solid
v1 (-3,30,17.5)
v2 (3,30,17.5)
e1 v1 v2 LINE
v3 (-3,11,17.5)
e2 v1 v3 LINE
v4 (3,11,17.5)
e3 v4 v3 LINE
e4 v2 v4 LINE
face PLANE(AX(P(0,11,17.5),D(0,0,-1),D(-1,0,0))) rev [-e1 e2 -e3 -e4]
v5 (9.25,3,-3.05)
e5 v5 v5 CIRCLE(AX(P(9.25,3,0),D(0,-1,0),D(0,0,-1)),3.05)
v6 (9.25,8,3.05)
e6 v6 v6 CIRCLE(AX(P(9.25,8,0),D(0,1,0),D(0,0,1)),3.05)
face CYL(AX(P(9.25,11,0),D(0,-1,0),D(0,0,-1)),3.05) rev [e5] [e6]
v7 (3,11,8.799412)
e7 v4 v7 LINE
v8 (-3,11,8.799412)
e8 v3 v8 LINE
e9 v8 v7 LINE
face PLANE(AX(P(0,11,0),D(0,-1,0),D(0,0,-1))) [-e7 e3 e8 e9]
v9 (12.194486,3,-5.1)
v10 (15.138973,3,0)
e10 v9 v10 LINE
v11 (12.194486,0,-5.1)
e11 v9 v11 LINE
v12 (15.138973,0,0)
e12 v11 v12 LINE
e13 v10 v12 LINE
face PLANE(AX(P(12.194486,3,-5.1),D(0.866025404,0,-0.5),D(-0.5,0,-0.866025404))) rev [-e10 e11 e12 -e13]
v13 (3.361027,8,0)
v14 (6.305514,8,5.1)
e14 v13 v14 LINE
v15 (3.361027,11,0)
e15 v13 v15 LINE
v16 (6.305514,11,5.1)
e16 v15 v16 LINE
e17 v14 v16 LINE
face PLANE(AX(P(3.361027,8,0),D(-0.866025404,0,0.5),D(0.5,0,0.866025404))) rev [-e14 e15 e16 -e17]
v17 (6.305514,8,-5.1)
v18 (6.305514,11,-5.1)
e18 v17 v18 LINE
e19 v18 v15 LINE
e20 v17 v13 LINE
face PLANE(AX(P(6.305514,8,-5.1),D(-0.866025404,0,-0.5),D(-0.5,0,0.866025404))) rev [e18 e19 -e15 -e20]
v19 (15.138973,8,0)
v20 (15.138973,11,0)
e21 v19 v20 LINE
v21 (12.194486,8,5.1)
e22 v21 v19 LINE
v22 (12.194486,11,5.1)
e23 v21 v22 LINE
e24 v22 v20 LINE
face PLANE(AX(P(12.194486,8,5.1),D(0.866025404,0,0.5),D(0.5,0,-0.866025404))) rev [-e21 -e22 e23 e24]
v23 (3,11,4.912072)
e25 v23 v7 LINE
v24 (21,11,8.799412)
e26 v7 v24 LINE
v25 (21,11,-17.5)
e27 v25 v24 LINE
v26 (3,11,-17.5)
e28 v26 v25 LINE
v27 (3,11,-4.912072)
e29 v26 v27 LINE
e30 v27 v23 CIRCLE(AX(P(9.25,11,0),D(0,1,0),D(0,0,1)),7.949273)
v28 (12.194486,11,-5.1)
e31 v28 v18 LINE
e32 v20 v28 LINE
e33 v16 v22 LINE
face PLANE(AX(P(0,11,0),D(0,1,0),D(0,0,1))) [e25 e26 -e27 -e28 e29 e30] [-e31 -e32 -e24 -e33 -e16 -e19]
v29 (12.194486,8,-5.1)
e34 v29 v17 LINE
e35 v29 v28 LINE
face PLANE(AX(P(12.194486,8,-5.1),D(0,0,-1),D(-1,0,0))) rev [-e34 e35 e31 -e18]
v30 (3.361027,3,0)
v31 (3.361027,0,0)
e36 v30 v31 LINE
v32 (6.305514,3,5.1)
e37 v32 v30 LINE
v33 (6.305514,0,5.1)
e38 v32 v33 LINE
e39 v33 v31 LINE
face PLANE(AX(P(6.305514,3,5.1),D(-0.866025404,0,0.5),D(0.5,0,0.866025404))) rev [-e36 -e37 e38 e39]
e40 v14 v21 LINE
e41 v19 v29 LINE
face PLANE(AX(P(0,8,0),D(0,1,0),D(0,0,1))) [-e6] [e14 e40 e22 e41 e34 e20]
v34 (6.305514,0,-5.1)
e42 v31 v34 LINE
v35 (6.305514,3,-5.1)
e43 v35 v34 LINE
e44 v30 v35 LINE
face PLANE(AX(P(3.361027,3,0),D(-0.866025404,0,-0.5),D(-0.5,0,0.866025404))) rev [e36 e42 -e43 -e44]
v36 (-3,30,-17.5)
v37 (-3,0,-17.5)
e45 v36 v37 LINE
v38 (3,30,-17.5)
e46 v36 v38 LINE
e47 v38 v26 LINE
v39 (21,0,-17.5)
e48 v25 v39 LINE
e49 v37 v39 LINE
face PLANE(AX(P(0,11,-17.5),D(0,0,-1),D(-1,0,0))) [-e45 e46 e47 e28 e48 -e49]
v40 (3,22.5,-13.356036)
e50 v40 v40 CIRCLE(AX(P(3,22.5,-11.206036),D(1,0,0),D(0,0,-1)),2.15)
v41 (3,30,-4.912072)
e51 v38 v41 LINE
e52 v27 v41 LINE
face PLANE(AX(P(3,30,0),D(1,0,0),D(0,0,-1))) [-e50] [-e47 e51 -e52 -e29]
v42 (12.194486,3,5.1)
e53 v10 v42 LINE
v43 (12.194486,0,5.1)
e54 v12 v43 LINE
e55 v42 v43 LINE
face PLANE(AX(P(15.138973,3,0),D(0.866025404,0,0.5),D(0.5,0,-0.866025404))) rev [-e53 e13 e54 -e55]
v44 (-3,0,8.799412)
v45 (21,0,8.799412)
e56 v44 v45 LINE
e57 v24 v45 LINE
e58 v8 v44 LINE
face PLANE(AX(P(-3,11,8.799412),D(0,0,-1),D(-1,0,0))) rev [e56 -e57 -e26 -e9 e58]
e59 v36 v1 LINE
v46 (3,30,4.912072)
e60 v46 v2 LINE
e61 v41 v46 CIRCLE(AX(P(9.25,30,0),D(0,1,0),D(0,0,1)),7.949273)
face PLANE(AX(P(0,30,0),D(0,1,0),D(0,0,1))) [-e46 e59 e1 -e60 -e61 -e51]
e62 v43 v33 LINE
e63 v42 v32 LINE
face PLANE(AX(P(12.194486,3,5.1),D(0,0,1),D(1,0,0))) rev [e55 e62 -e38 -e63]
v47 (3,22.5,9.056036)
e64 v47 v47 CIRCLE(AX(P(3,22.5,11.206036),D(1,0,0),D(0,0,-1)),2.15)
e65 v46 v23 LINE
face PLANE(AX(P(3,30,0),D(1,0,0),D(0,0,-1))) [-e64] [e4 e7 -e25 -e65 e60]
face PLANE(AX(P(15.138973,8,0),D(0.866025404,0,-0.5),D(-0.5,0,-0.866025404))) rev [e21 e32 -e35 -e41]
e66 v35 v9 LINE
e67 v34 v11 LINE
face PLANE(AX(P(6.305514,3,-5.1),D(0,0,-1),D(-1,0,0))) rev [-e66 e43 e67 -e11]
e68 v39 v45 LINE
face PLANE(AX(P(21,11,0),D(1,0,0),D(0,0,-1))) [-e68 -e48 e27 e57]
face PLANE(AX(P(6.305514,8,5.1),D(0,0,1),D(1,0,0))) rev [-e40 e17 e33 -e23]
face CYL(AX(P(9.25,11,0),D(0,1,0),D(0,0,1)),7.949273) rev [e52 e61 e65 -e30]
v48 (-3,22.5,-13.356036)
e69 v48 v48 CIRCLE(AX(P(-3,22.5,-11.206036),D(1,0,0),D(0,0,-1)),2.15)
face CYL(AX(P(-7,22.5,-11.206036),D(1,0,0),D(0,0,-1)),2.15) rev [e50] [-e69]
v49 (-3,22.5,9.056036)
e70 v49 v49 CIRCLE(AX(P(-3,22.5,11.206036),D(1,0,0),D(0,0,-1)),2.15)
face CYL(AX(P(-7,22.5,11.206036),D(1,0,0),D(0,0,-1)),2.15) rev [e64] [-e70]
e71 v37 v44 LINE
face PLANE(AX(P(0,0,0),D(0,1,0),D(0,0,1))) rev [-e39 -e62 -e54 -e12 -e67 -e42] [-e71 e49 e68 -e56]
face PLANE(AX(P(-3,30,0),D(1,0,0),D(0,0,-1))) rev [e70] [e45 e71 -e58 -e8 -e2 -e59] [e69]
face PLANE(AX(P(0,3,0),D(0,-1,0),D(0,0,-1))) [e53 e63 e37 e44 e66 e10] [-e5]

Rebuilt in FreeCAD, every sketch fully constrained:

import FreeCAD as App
import Part
import Sketcher
Q = App.Units.Quantity

doc = App.newDocument("Part")
body = doc.addObject("PartDesign::Body", "Body")

# Sketch on XZ plane
sketch1 = body.newObject("Sketcher::SketchObject", "Sketch")
sketch1.AttachmentSupport = (doc.getObject("XZ_Plane"), [""])
sketch1.MapMode = "FlatFace"
sketch1.addGeometry(Part.LineSegment(App.Vector(3, -17.5, 0), App.Vector(3, 17.5, 0)), False)
sketch1.addGeometry(Part.LineSegment(App.Vector(3, 17.5, 0), App.Vector(21, 17.5, 0)), False)
sketch1.addGeometry(Part.LineSegment(App.Vector(21, 17.5, 0), App.Vector(21, -17.5, 0)), False)
sketch1.addGeometry(Part.LineSegment(App.Vector(21, -17.5, 0), App.Vector(3, -17.5, 0)), False)
sketch1.addGeometry(Part.Circle(App.Vector(9.25, 0, 0), App.Vector(0, 0, 1), 3.05), False)
sketch1.addConstraint(Sketcher.Constraint("Coincident", 0, 2, 1, 1))
sketch1.addConstraint(Sketcher.Constraint("Coincident", 1, 2, 2, 1))
sketch1.addConstraint(Sketcher.Constraint("Coincident", 2, 2, 3, 1))
sketch1.addConstraint(Sketcher.Constraint("Coincident", 3, 2, 0, 1))
sketch1.addConstraint(Sketcher.Constraint("Vertical", 0))
sketch1.addConstraint(Sketcher.Constraint("Horizontal", 1))
sketch1.addConstraint(Sketcher.Constraint("Vertical", 2))
sketch1.addConstraint(Sketcher.Constraint("Horizontal", 3))
sketch1.addConstraint(Sketcher.Constraint("PointOnObject", 4, 3, -1))
sketch1.addConstraint(Sketcher.Constraint("Diameter", 4, Q("6.1 mm")))
sketch1.addConstraint(Sketcher.Constraint("DistanceX", 1, 1, 1, 2, Q("18 mm")))
sketch1.addConstraint(Sketcher.Constraint("DistanceY", 0, 1, 0, 2, Q("35 mm")))
sketch1.addConstraint(Sketcher.Constraint("DistanceX", -1, 1, 0, 2, Q("3 mm")))
sketch1.addConstraint(Sketcher.Constraint("DistanceY", -1, 1, 0, 2, Q("17.5 mm")))
sketch1.addConstraint(Sketcher.Constraint("DistanceX", -1, 1, 4, 3, Q("9.25 mm")))
pad1 = body.newObject("PartDesign::Pad", "Pad")
pad1.Profile = sketch1
pad1.Length = 11
pad1.Reversed = True

# Sketch on XZ plane
sketch2 = body.newObject("Sketcher::SketchObject", "Sketch001")
sketch2.AttachmentSupport = (doc.getObject("XZ_Plane"), [""])
sketch2.MapMode = "FlatFace"
sketch2.addGeometry(Part.LineSegment(App.Vector(-3, -17.5, 0), App.Vector(-3, 17.5, 0)), False)
sketch2.addGeometry(Part.LineSegment(App.Vector(-3, 17.5, 0), App.Vector(3, 17.5, 0)), False)
sketch2.addGeometry(Part.LineSegment(App.Vector(3, 17.5, 0), App.Vector(3, -17.5, 0)), False)
sketch2.addGeometry(Part.LineSegment(App.Vector(3, -17.5, 0), App.Vector(-3, -17.5, 0)), False)
sketch2.addConstraint(Sketcher.Constraint("Coincident", 0, 2, 1, 1))
sketch2.addConstraint(Sketcher.Constraint("Coincident", 1, 2, 2, 1))
sketch2.addConstraint(Sketcher.Constraint("Coincident", 2, 2, 3, 1))
sketch2.addConstraint(Sketcher.Constraint("Coincident", 3, 2, 0, 1))
sketch2.addConstraint(Sketcher.Constraint("Vertical", 0))
sketch2.addConstraint(Sketcher.Constraint("Horizontal", 1))
sketch2.addConstraint(Sketcher.Constraint("Vertical", 2))
sketch2.addConstraint(Sketcher.Constraint("Horizontal", 3))
sketch2.addConstraint(Sketcher.Constraint("Symmetric", 0, 2, 2, 2, -1, 1))
sketch2.addConstraint(Sketcher.Constraint("DistanceX", 1, 1, 1, 2, Q("6 mm")))
sketch2.addConstraint(Sketcher.Constraint("DistanceY", 0, 1, 0, 2, Q("35 mm")))
pad2 = body.newObject("PartDesign::Pad", "Pad001")
pad2.Profile = sketch2
pad2.Length = 30
pad2.Reversed = True

# Sketch on XZ plane
sketch3 = body.newObject("Sketcher::SketchObject", "Sketch002")
sketch3.AttachmentSupport = (doc.getObject("XZ_Plane"), [""])
sketch3.MapMode = "FlatFace"
sketch3.AttachmentOffset = App.Placement(App.Vector(0, 0, -30), App.Rotation())
sketch3.addGeometry(Part.Circle(App.Vector(9.25, 0, 0), App.Vector(0, 0, 1), 7.949273), False)
sketch3.addConstraint(Sketcher.Constraint("PointOnObject", 0, 3, -1))
sketch3.addConstraint(Sketcher.Constraint("DistanceX", -1, 1, 0, 3, Q("9.25 mm")))
sketch3.addConstraint(Sketcher.Constraint("Diameter", 0, Q("15.898547 mm")))
pocket1 = body.newObject("PartDesign::Pocket", "Pocket")
pocket1.Profile = sketch3
pocket1.Length = 19
pocket1.Reversed = True

# Sketch on XZ plane
sketch4 = body.newObject("Sketcher::SketchObject", "Sketch003")
sketch4.AttachmentSupport = (doc.getObject("XZ_Plane"), [""])
sketch4.MapMode = "FlatFace"
sketch4.AttachmentOffset = App.Placement(App.Vector(0, 0, -11), App.Rotation())
sketch4.addGeometry(Part.LineSegment(App.Vector(15.138973, 0, 0), App.Vector(12.194486, -5.1, 0)), False)
sketch4.addGeometry(Part.LineSegment(App.Vector(12.194486, -5.1, 0), App.Vector(6.305514, -5.1, 0)), False)
sketch4.addGeometry(Part.LineSegment(App.Vector(6.305514, -5.1, 0), App.Vector(3.361027, 0, 0)), False)
sketch4.addGeometry(Part.LineSegment(App.Vector(3.361027, 0, 0), App.Vector(6.305514, 5.1, 0)), False)
sketch4.addGeometry(Part.LineSegment(App.Vector(6.305514, 5.1, 0), App.Vector(12.194486, 5.1, 0)), False)
sketch4.addGeometry(Part.LineSegment(App.Vector(12.194486, 5.1, 0), App.Vector(15.138973, 0, 0)), False)
sketch4.addConstraint(Sketcher.Constraint("Coincident", 0, 2, 1, 1))
sketch4.addConstraint(Sketcher.Constraint("Coincident", 1, 2, 2, 1))
sketch4.addConstraint(Sketcher.Constraint("Coincident", 2, 2, 3, 1))
sketch4.addConstraint(Sketcher.Constraint("Coincident", 3, 2, 4, 1))
sketch4.addConstraint(Sketcher.Constraint("Coincident", 4, 2, 5, 1))
sketch4.addConstraint(Sketcher.Constraint("Coincident", 5, 2, 0, 1))
sketch4.addConstraint(Sketcher.Constraint("Horizontal", 1))
sketch4.addConstraint(Sketcher.Constraint("Horizontal", 4))
sketch4.addConstraint(Sketcher.Constraint("Symmetric", 1, 2, 3, 2, -1))
sketch4.addConstraint(Sketcher.Constraint("PointOnObject", 2, 2, -1))
sketch4.addConstraint(Sketcher.Constraint("PointOnObject", 5, 2, -1))
sketch4.addConstraint(Sketcher.Constraint("Parallel", 0, 3))
sketch4.addConstraint(Sketcher.Constraint("Parallel", 2, 5))
sketch4.addConstraint(Sketcher.Constraint("Angle", 0, Q("-120 deg")))
sketch4.addConstraint(Sketcher.Constraint("DistanceY", 0, 2, -1, 1, Q("5.1 mm")))
sketch4.addConstraint(Sketcher.Constraint("DistanceX", 1, 2, 1, 1, Q("5.888973 mm")))
sketch4.addConstraint(Sketcher.Constraint("DistanceX", -1, 1, 0, 2, Q("12.194486 mm")))
pocket2 = body.newObject("PartDesign::Pocket", "Pocket001")
pocket2.Profile = sketch4
pocket2.Length = 3
pocket2.Reversed = True

# Sketch on XZ plane
sketch5 = body.newObject("Sketcher::SketchObject", "Sketch004")
sketch5.AttachmentSupport = (doc.getObject("XZ_Plane"), [""])
sketch5.MapMode = "FlatFace"
sketch5.addGeometry(Part.LineSegment(App.Vector(3.361027, 0, 0), App.Vector(6.305514, -5.1, 0)), False)
sketch5.addGeometry(Part.LineSegment(App.Vector(6.305514, -5.1, 0), App.Vector(12.194486, -5.1, 0)), False)
sketch5.addGeometry(Part.LineSegment(App.Vector(12.194486, -5.1, 0), App.Vector(15.138973, 0, 0)), False)
sketch5.addGeometry(Part.LineSegment(App.Vector(15.138973, 0, 0), App.Vector(12.194486, 5.1, 0)), False)
sketch5.addGeometry(Part.LineSegment(App.Vector(12.194486, 5.1, 0), App.Vector(6.305514, 5.1, 0)), False)
sketch5.addGeometry(Part.LineSegment(App.Vector(6.305514, 5.1, 0), App.Vector(3.361027, 0, 0)), False)
sketch5.addConstraint(Sketcher.Constraint("Coincident", 0, 2, 1, 1))
sketch5.addConstraint(Sketcher.Constraint("Coincident", 1, 2, 2, 1))
sketch5.addConstraint(Sketcher.Constraint("Coincident", 2, 2, 3, 1))
sketch5.addConstraint(Sketcher.Constraint("Coincident", 3, 2, 4, 1))
sketch5.addConstraint(Sketcher.Constraint("Coincident", 4, 2, 5, 1))
sketch5.addConstraint(Sketcher.Constraint("Coincident", 5, 2, 0, 1))
sketch5.addConstraint(Sketcher.Constraint("Horizontal", 1))
sketch5.addConstraint(Sketcher.Constraint("Horizontal", 4))
sketch5.addConstraint(Sketcher.Constraint("Symmetric", 1, 2, 3, 2, -1))
sketch5.addConstraint(Sketcher.Constraint("PointOnObject", 2, 2, -1))
sketch5.addConstraint(Sketcher.Constraint("PointOnObject", 5, 2, -1))
sketch5.addConstraint(Sketcher.Constraint("Parallel", 0, 3))
sketch5.addConstraint(Sketcher.Constraint("Parallel", 2, 5))
sketch5.addConstraint(Sketcher.Constraint("Angle", 0, Q("-60 deg")))
sketch5.addConstraint(Sketcher.Constraint("DistanceY", 0, 2, -1, 1, Q("5.1 mm")))
sketch5.addConstraint(Sketcher.Constraint("DistanceX", 1, 1, 1, 2, Q("5.888973 mm")))
sketch5.addConstraint(Sketcher.Constraint("DistanceX", -1, 1, 0, 2, Q("6.305514 mm")))
pocket3 = body.newObject("PartDesign::Pocket", "Pocket002")
pocket3.Profile = sketch5
pocket3.Length = 3

# Sketch on YZ plane
sketch6 = body.newObject("Sketcher::SketchObject", "Sketch005")
sketch6.AttachmentSupport = (doc.getObject("YZ_Plane"), [""])
sketch6.MapMode = "FlatFace"
sketch6.AttachmentOffset = App.Placement(App.Vector(0, 0, 3), App.Rotation())
sketch6.addGeometry(Part.Circle(App.Vector(22.5, 11.206036, 0), App.Vector(0, 0, 1), 2.15), False)
sketch6.addGeometry(Part.Circle(App.Vector(22.5, -11.206036, 0), App.Vector(0, 0, 1), 2.15), False)
sketch6.addConstraint(Sketcher.Constraint("Equal", 0, 1))
sketch6.addConstraint(Sketcher.Constraint("Symmetric", 0, 3, 1, 3, -1))
sketch6.addConstraint(Sketcher.Constraint("Diameter", 0, Q("4.3 mm")))
sketch6.addConstraint(Sketcher.Constraint("DistanceX", -1, 1, 0, 3, Q("22.5 mm")))
sketch6.addConstraint(Sketcher.Constraint("DistanceY", 1, 3, 0, 3, Q("22.412072 mm")))
pocket4 = body.newObject("PartDesign::Pocket", "Pocket003")
pocket4.Profile = sketch6
pocket4.Length = 10

# Sketch on XZ plane
sketch7 = body.newObject("Sketcher::SketchObject", "Sketch006")
sketch7.AttachmentSupport = (doc.getObject("XZ_Plane"), [""])
sketch7.MapMode = "FlatFace"
sketch7.addGeometry(Part.LineSegment(App.Vector(-3, 17.5, 0), App.Vector(-3, 8.799412, 0)), False)
sketch7.addGeometry(Part.LineSegment(App.Vector(-3, 8.799412, 0), App.Vector(21, 8.799412, 0)), False)
sketch7.addGeometry(Part.LineSegment(App.Vector(21, 8.799412, 0), App.Vector(21, 17.5, 0)), False)
sketch7.addGeometry(Part.LineSegment(App.Vector(21, 17.5, 0), App.Vector(-3, 17.5, 0)), False)
sketch7.addConstraint(Sketcher.Constraint("Coincident", 0, 2, 1, 1))
sketch7.addConstraint(Sketcher.Constraint("Coincident", 1, 2, 2, 1))
sketch7.addConstraint(Sketcher.Constraint("Coincident", 2, 2, 3, 1))
sketch7.addConstraint(Sketcher.Constraint("Coincident", 3, 2, 0, 1))
sketch7.addConstraint(Sketcher.Constraint("Vertical", 0))
sketch7.addConstraint(Sketcher.Constraint("Horizontal", 1))
sketch7.addConstraint(Sketcher.Constraint("Vertical", 2))
sketch7.addConstraint(Sketcher.Constraint("Horizontal", 3))
sketch7.addConstraint(Sketcher.Constraint("DistanceX", 1, 1, 1, 2, Q("24 mm")))
sketch7.addConstraint(Sketcher.Constraint("DistanceX", 0, 2, -1, 1, Q("3 mm")))
sketch7.addConstraint(Sketcher.Constraint("DistanceY", -1, 1, 2, 2, Q("17.5 mm")))
sketch7.addConstraint(Sketcher.Constraint("DistanceY", 0, 2, 0, 1, Q("8.700588 mm")))
pocket5 = body.newObject("PartDesign::Pocket", "Pocket004")
pocket5.Profile = sketch7
pocket5.Length = 11

doc.recompute()
